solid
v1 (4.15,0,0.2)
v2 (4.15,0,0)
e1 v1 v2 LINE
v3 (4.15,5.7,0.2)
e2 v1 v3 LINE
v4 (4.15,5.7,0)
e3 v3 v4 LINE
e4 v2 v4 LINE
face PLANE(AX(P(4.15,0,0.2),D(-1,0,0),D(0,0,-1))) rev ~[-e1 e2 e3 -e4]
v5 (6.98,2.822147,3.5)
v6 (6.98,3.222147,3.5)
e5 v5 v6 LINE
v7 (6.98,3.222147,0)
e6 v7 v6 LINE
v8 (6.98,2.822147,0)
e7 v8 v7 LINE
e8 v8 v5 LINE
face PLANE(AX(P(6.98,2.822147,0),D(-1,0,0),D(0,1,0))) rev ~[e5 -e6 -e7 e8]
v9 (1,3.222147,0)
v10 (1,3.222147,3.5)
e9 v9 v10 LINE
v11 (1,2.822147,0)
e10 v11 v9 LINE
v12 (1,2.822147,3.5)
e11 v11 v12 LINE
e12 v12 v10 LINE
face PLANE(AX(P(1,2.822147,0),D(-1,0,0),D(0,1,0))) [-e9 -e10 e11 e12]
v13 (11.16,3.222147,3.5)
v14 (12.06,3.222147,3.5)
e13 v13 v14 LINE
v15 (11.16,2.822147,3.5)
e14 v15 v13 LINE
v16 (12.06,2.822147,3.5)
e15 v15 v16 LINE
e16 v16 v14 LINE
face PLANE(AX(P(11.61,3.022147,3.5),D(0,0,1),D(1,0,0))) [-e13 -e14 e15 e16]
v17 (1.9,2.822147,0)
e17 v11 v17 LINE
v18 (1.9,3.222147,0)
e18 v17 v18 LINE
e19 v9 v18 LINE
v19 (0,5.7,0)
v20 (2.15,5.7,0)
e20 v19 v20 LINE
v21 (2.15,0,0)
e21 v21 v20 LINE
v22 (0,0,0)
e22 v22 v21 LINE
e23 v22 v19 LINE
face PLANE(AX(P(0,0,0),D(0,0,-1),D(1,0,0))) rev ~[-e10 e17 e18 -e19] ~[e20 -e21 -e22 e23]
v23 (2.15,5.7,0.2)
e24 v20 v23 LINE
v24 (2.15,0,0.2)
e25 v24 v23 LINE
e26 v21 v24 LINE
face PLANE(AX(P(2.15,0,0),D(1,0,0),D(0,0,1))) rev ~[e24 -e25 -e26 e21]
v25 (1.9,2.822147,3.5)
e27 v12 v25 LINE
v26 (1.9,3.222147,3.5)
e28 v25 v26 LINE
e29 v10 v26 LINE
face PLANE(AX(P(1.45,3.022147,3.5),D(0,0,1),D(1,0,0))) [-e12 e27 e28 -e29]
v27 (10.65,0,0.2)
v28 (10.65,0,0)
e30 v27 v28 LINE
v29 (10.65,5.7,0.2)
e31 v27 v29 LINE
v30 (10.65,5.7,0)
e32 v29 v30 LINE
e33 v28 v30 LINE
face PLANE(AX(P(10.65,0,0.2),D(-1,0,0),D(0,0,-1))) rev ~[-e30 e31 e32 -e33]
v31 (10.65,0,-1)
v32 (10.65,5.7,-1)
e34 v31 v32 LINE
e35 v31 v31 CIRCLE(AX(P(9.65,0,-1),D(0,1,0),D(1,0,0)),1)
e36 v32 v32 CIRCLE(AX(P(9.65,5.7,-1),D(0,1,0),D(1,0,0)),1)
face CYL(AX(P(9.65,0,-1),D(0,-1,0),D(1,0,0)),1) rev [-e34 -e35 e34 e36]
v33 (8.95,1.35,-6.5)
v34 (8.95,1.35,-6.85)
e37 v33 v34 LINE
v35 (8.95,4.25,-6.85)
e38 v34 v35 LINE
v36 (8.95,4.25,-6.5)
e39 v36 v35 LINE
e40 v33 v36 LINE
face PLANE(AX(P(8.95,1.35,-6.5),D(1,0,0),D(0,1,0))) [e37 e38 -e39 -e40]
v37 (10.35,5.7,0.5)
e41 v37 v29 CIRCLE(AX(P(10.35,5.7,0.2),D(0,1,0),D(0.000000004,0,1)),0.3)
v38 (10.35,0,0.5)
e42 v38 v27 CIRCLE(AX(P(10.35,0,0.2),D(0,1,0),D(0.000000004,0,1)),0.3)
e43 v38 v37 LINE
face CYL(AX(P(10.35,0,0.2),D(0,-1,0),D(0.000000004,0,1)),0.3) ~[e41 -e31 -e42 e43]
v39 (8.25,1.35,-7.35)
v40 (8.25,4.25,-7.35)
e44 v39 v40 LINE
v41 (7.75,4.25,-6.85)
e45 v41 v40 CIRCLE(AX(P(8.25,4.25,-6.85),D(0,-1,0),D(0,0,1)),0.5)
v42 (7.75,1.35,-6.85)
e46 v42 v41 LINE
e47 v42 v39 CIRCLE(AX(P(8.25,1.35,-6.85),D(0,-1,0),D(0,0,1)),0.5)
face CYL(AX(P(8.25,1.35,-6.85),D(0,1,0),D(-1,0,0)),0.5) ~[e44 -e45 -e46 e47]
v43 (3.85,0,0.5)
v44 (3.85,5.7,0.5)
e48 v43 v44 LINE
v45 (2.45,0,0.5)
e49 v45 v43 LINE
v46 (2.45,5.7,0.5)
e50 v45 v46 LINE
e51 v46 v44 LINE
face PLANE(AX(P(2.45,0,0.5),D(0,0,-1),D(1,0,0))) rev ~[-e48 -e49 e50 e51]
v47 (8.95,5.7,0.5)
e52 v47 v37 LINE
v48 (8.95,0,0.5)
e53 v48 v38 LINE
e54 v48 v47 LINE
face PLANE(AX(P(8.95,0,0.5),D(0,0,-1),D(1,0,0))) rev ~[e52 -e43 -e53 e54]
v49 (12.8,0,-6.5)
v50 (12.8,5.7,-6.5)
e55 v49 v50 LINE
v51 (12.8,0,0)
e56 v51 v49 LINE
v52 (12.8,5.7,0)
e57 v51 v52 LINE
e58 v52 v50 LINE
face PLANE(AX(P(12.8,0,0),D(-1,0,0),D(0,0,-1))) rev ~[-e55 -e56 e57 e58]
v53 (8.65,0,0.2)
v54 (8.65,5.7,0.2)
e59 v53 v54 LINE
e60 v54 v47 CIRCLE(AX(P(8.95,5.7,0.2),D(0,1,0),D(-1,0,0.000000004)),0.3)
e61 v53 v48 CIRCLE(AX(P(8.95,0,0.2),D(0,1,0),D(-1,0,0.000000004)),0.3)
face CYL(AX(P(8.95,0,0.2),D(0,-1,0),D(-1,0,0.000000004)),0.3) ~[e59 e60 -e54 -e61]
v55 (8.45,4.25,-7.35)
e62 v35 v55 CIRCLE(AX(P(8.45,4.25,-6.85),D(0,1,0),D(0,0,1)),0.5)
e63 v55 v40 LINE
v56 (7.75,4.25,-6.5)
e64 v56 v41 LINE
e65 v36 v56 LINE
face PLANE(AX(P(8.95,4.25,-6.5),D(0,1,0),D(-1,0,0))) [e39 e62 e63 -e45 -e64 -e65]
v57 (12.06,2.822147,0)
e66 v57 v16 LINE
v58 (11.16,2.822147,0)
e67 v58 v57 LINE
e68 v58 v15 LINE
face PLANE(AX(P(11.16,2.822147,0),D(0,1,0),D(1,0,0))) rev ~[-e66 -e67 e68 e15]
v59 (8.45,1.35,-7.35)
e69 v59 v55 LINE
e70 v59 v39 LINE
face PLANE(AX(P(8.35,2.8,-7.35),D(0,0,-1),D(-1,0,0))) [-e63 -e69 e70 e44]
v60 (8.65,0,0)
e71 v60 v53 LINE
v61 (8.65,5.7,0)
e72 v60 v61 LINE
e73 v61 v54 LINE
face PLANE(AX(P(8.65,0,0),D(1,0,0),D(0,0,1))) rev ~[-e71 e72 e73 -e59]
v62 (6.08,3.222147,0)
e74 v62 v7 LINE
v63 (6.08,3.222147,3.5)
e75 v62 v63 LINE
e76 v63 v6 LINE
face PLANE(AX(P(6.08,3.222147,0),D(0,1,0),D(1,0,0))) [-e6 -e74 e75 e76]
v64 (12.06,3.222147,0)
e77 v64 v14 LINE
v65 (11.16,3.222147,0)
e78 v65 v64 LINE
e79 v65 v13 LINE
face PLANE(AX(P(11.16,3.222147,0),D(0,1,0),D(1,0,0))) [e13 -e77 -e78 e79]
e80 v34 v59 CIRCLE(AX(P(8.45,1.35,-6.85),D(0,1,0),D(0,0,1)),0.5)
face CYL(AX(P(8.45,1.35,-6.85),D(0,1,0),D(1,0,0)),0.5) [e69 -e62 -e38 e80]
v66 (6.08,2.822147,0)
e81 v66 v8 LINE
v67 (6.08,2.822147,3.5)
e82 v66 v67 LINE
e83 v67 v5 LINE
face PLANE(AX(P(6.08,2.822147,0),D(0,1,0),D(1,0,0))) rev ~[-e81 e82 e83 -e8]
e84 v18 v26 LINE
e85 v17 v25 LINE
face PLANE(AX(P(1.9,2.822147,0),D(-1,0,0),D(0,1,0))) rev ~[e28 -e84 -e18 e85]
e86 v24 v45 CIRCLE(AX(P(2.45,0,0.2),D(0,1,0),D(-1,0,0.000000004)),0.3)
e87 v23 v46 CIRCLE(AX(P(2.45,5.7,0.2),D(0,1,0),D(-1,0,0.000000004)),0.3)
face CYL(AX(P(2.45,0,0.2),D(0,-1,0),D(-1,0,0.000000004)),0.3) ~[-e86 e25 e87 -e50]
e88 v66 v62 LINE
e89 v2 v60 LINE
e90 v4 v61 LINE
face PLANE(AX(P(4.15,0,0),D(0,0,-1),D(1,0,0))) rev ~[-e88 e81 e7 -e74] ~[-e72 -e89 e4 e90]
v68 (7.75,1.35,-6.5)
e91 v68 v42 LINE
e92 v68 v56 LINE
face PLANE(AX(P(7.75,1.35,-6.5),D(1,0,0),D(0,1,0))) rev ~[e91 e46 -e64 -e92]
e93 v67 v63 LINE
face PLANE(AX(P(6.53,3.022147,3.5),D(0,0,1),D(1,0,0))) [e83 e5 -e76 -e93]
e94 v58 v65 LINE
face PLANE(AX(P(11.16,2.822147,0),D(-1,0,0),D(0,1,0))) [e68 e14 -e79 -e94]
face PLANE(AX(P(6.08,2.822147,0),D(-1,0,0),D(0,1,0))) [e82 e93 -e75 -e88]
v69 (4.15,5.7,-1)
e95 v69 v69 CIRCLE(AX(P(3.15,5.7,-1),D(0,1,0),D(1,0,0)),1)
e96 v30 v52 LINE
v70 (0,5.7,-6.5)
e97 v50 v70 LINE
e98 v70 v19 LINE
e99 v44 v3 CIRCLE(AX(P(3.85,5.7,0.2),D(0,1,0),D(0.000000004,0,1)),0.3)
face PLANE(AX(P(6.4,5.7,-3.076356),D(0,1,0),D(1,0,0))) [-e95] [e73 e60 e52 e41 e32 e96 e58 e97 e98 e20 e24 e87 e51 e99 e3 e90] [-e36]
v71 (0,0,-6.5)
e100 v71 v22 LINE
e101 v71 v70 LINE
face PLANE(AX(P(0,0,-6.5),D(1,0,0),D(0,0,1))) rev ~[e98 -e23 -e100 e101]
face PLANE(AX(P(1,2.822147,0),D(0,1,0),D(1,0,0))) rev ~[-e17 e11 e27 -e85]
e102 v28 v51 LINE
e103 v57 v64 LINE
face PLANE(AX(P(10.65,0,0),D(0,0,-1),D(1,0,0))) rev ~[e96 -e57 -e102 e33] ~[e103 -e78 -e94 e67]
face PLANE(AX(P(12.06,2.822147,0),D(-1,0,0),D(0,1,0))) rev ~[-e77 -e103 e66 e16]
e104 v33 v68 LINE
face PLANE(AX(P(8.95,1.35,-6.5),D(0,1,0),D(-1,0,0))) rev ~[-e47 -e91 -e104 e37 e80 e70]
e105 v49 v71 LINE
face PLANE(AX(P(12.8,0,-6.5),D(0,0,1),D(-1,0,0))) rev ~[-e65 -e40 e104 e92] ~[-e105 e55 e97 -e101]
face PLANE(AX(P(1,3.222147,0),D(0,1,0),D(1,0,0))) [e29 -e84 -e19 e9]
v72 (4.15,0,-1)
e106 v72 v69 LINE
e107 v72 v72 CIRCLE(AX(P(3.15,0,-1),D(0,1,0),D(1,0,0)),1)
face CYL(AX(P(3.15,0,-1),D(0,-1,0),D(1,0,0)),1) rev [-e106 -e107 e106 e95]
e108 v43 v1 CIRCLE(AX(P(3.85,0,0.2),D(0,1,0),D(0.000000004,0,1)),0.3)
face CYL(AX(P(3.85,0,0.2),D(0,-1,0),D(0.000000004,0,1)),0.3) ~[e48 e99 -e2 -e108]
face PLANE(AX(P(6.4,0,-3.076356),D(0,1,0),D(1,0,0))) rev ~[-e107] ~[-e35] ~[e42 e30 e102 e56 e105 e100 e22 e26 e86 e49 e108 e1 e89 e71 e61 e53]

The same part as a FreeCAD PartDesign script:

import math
import FreeCAD as App
import Part
import Sketcher
from FreeCAD import Vector


def edges_at(feature, points):
    """Names of the edges that pass closest to the given points."""
    edges = feature.Shape.Edges
    near = lambda p: min(range(len(edges)), key=lambda i: edges[i].distToShape(Part.Vertex(*p))[0])
    return sorted({f"Edge{near(p) + 1}" for p in points})

doc = App.newDocument("Part")
body = doc.addObject("PartDesign::Body", "Body")

sketch1 = body.newObject("Sketcher::SketchObject", "Sketch")
sketch1.AttachmentSupport = (doc.getObject("XZ_Plane"), [""])
sketch1.MapMode = "FlatFace"
sketch1.addGeometry([
    Part.LineSegment(Vector(0, 0, 0), Vector(2.15, 0, 0)),
    Part.LineSegment(Vector(2.15, 0, 0), Vector(2.15, 0.2, 0)),
    Part.ArcOfCircle(Part.Circle(Vector(2.45, 0.2, 0), Vector(0, 0, 1), 0.3), math.radians(90), math.radians(180)),
    Part.LineSegment(Vector(2.45, 0.5, 0), Vector(3.85, 0.5, 0)),
    Part.ArcOfCircle(Part.Circle(Vector(3.85, 0.2, 0), Vector(0, 0, 1), 0.3), math.radians(0), math.radians(90)),
    Part.LineSegment(Vector(4.15, 0.2, 0), Vector(4.15, 0, 0)),
    Part.LineSegment(Vector(4.15, 0, 0), Vector(8.65, 0, 0)),
    Part.LineSegment(Vector(8.65, 0, 0), Vector(8.65, 0.2, 0)),
    Part.ArcOfCircle(Part.Circle(Vector(8.95, 0.2, 0), Vector(0, 0, 1), 0.3), math.radians(90), math.radians(180)),
    Part.LineSegment(Vector(8.95, 0.5, 0), Vector(10.35, 0.5, 0)),
    Part.ArcOfCircle(Part.Circle(Vector(10.35, 0.2, 0), Vector(0, 0, 1), 0.3), math.radians(0), math.radians(90)),
    Part.LineSegment(Vector(10.65, 0.2, 0), Vector(10.65, 0, 0)),
    Part.LineSegment(Vector(10.65, 0, 0), Vector(12.8, 0, 0)),
    Part.LineSegment(Vector(12.8, 0, 0), Vector(12.8, -6.5, 0)),
    Part.LineSegment(Vector(12.8, -6.5, 0), Vector(0, -6.5, 0)),
    Part.LineSegment(Vector(0, -6.5, 0), Vector(0, 0, 0)),
    Part.Circle(Vector(3.15, -1, 0), Vector(0, 0, 1), 1),
    Part.Circle(Vector(9.65, -1, 0), Vector(0, 0, 1), 1),
], False)
sketch1.addConstraint([
    Sketcher.Constraint("Coincident", 0, 2, 1, 1),
    Sketcher.Constraint("Tangent", 1, 2, 2, 2),
    Sketcher.Constraint("Tangent", 2, 1, 3, 1),
    Sketcher.Constraint("Tangent", 3, 2, 4, 2),
    Sketcher.Constraint("Tangent", 4, 1, 5, 1),
    Sketcher.Constraint("Coincident", 5, 2, 6, 1),
    Sketcher.Constraint("Coincident", 6, 2, 7, 1),
    Sketcher.Constraint("Tangent", 7, 2, 8, 2),
    Sketcher.Constraint("Tangent", 8, 1, 9, 1),
    Sketcher.Constraint("Tangent", 9, 2, 10, 2),
    Sketcher.Constraint("Tangent", 10, 1, 11, 1),
    Sketcher.Constraint("Coincident", 11, 2, 12, 1),
    Sketcher.Constraint("Coincident", 12, 2, 13, 1),
    Sketcher.Constraint("Coincident", 13, 2, 14, 1),
    Sketcher.Constraint("Coincident", 14, 2, 15, 1),
    Sketcher.Constraint("Coincident", 15, 2, 0, 1),
    Sketcher.Constraint("Horizontal", 0),
    Sketcher.Constraint("Vertical", 1),
    Sketcher.Constraint("Horizontal", 3),
    Sketcher.Constraint("Vertical", 5),
    Sketcher.Constraint("Horizontal", 6),
    Sketcher.Constraint("Vertical", 7),
    Sketcher.Constraint("Horizontal", 9),
    Sketcher.Constraint("Vertical", 11),
    Sketcher.Constraint("Horizontal", 12),
    Sketcher.Constraint("Vertical", 13),
    Sketcher.Constraint("Horizontal", 14),
    Sketcher.Constraint("Vertical", 15),
    Sketcher.Constraint("Coincident", 15, 2, -1, 1),
    Sketcher.Constraint("Equal", 2, 4),
    Sketcher.Constraint("Equal", 4, 8),
    Sketcher.Constraint("Equal", 8, 10),
    Sketcher.Constraint("Equal", 16, 17),
    Sketcher.Constraint("PointOnObject", 5, 2, -1),
    Sketcher.Constraint("PointOnObject", 11, 2, -1),
    Sketcher.Constraint("Horizontal", 4, 3, 8, 3),
    Sketcher.Constraint("Horizontal", 16, 3, 17, 3),
    Sketcher.Constraint("Equal", 3, 9),
    Sketcher.Constraint("Equal", 0, 12),
    Sketcher.Constraint("Diameter", 16, 2.0),
    Sketcher.Constraint("Radius", 2, 0.3),
    Sketcher.Constraint("DistanceX", 3, 1, 3, 2, 1.4),
    Sketcher.Constraint("DistanceX", 6, 1, 6, 2, 4.5),
    Sketcher.Constraint("DistanceX", 14, 2, 14, 1, 12.8),
    Sketcher.Constraint("DistanceY", 1, 1, 1, 2, 0.2),
    Sketcher.Constraint("DistanceY", 13, 2, 13, 1, 6.5),
    Sketcher.Constraint("DistanceY", 16, 3, -1, 1, 1.0),
    Sketcher.Constraint("DistanceX", 0, 2, 16, 3, 1.0),
    Sketcher.Constraint("DistanceX", 6, 2, 17, 3, 1.0),
])
pad1 = body.newObject("PartDesign::Pad", "Pad")
pad1.Profile = sketch1
pad1.Length = 5.7
pad1.Reversed = True

sketch2 = body.newObject("Sketcher::SketchObject", "Sketch001")
sketch2.AttachmentSupport = (doc.getObject("XY_Plane"), [""])
sketch2.MapMode = "FlatFace"
sketch2.AttachmentOffset = App.Placement(Vector(0, 0, -6.5), App.Rotation())
sketch2.addGeometry([
    Part.LineSegment(Vector(8.9, 4.2, 0), Vector(8.9, 1.4, 0)),
    Part.LineSegment(Vector(8.9, 1.4, 0), Vector(7.8, 1.4, 0)),
    Part.LineSegment(Vector(7.8, 1.4, 0), Vector(7.8, 4.2, 0)),
    Part.LineSegment(Vector(7.8, 4.2, 0), Vector(8.9, 4.2, 0)),
], False)
sketch2.addConstraint([
    Sketcher.Constraint("Coincident", 0, 2, 1, 1),
    Sketcher.Constraint("Coincident", 1, 2, 2, 1),
    Sketcher.Constraint("Coincident", 2, 2, 3, 1),
    Sketcher.Constraint("Coincident", 3, 2, 0, 1),
    Sketcher.Constraint("Vertical", 0),
    Sketcher.Constraint("Horizontal", 1),
    Sketcher.Constraint("Vertical", 2),
    Sketcher.Constraint("Horizontal", 3),
    Sketcher.Constraint("DistanceX", 1, 2, 1, 1, 1.2),
    Sketcher.Constraint("DistanceY", 0, 2, 0, 1, 2.9),
    Sketcher.Constraint("DistanceX", -1, 1, 0, 2, 8.95),
    Sketcher.Constraint("DistanceY", -1, 1, 0, 2, 1.35),
])
pad2 = body.newObject("PartDesign::Pad", "Pad001")
pad2.Profile = sketch2
pad2.Length = 0.85
pad2.Reversed = True
doc.recompute()

fillet = body.newObject("PartDesign::Fillet", "Fillet")
fillet.Base = (pad2, edges_at(pad2, [(8.95, 2.8, -7.35), (7.75, 2.8, -7.35)]))
fillet.Radius = 0.5

sketch3 = body.newObject("Sketcher::SketchObject", "Sketch002")
sketch3.AttachmentSupport = (doc.getObject("XY_Plane"), [""])
sketch3.MapMode = "FlatFace"
sketch3.addGeometry([
    Part.LineSegment(Vector(1, 3.22, 0), Vector(1, 2.82, 0)),
    Part.LineSegment(Vector(1, 2.82, 0), Vector(1.9, 2.82, 0)),
    Part.LineSegment(Vector(1.9, 2.82, 0), Vector(1.9, 3.22, 0)),
    Part.LineSegment(Vector(1.9, 3.22, 0), Vector(1, 3.22, 0)),
    Part.LineSegment(Vector(6.08, 3.22, 0), Vector(6.08, 2.82, 0)),
    Part.LineSegment(Vector(6.08, 2.82, 0), Vector(6.98, 2.82, 0)),
    Part.LineSegment(Vector(6.98, 2.82, 0), Vector(6.98, 3.22, 0)),
    Part.LineSegment(Vector(6.98, 3.22, 0), Vector(6.08, 3.22, 0)),
    Part.LineSegment(Vector(11.16, 3.22, 0), Vector(11.16, 2.82, 0)),
    Part.LineSegment(Vector(11.16, 2.82, 0), Vector(12.06, 2.82, 0)),
    Part.LineSegment(Vector(12.06, 2.82, 0), Vector(12.06, 3.22, 0)),
    Part.LineSegment(Vector(12.06, 3.22, 0), Vector(11.16, 3.22, 0)),
], False)
sketch3.addConstraint([
    Sketcher.Constraint("Coincident", 0, 2, 1, 1),
    Sketcher.Constraint("Coincident", 1, 2, 2, 1),
    Sketcher.Constraint("Coincident", 2, 2, 3, 1),
    Sketcher.Constraint("Coincident", 3, 2, 0, 1),
    Sketcher.Constraint("Coincident", 4, 2, 5, 1),
    Sketcher.Constraint("Coincident", 5, 2, 6, 1),
    Sketcher.Constraint("Coincident", 6, 2, 7, 1),
    Sketcher.Constraint("Coincident", 7, 2, 4, 1),
    Sketcher.Constraint("Coincident", 8, 2, 9, 1),
    Sketcher.Constraint("Coincident", 9, 2, 10, 1),
    Sketcher.Constraint("Coincident", 10, 2, 11, 1),
    Sketcher.Constraint("Coincident", 11, 2, 8, 1),
    Sketcher.Constraint("Vertical", 0),
    Sketcher.Constraint("Horizontal", 1),
    Sketcher.Constraint("Vertical", 2),
    Sketcher.Constraint("Horizontal", 3),
    Sketcher.Constraint("Vertical", 4),
    Sketcher.Constraint("Horizontal", 5),
    Sketcher.Constraint("Vertical", 6),
    Sketcher.Constraint("Horizontal", 7),
    Sketcher.Constraint("Vertical", 8),
    Sketcher.Constraint("Horizontal", 9),
    Sketcher.Constraint("Vertical", 10),
    Sketcher.Constraint("Horizontal", 11),
    Sketcher.Constraint("Horizontal", 1, 2, 4, 2),
    Sketcher.Constraint("Horizontal", 3, 2, 6, 2),
    Sketcher.Constraint("Horizontal", 5, 2, 8, 2),
    Sketcher.Constraint("Horizontal", 7, 2, 10, 2),
    Sketcher.Constraint("Equal", 3, 5),
    Sketcher.Constraint("Equal", 7, 9),
    Sketcher.Constraint("DistanceX", 1, 1, 1, 2, 0.9),
    Sketcher.Constraint("DistanceY", 0, 2, 0, 1, 0.4),
    Sketcher.Constraint("DistanceX", -1, 1, 0, 2, 1.0),
    Sketcher.Constraint("DistanceX", -1, 1, 4, 2, 6.08),
    Sketcher.Constraint("DistanceX", -1, 1, 8, 2, 11.16),
    Sketcher.Constraint("DistanceY", -1, 1, 0, 2, 2.822147),
])
pad3 = body.newObject("PartDesign::Pad", "Pad002")
pad3.Profile = sketch3
pad3.Length = 3.5

doc.recompute()
